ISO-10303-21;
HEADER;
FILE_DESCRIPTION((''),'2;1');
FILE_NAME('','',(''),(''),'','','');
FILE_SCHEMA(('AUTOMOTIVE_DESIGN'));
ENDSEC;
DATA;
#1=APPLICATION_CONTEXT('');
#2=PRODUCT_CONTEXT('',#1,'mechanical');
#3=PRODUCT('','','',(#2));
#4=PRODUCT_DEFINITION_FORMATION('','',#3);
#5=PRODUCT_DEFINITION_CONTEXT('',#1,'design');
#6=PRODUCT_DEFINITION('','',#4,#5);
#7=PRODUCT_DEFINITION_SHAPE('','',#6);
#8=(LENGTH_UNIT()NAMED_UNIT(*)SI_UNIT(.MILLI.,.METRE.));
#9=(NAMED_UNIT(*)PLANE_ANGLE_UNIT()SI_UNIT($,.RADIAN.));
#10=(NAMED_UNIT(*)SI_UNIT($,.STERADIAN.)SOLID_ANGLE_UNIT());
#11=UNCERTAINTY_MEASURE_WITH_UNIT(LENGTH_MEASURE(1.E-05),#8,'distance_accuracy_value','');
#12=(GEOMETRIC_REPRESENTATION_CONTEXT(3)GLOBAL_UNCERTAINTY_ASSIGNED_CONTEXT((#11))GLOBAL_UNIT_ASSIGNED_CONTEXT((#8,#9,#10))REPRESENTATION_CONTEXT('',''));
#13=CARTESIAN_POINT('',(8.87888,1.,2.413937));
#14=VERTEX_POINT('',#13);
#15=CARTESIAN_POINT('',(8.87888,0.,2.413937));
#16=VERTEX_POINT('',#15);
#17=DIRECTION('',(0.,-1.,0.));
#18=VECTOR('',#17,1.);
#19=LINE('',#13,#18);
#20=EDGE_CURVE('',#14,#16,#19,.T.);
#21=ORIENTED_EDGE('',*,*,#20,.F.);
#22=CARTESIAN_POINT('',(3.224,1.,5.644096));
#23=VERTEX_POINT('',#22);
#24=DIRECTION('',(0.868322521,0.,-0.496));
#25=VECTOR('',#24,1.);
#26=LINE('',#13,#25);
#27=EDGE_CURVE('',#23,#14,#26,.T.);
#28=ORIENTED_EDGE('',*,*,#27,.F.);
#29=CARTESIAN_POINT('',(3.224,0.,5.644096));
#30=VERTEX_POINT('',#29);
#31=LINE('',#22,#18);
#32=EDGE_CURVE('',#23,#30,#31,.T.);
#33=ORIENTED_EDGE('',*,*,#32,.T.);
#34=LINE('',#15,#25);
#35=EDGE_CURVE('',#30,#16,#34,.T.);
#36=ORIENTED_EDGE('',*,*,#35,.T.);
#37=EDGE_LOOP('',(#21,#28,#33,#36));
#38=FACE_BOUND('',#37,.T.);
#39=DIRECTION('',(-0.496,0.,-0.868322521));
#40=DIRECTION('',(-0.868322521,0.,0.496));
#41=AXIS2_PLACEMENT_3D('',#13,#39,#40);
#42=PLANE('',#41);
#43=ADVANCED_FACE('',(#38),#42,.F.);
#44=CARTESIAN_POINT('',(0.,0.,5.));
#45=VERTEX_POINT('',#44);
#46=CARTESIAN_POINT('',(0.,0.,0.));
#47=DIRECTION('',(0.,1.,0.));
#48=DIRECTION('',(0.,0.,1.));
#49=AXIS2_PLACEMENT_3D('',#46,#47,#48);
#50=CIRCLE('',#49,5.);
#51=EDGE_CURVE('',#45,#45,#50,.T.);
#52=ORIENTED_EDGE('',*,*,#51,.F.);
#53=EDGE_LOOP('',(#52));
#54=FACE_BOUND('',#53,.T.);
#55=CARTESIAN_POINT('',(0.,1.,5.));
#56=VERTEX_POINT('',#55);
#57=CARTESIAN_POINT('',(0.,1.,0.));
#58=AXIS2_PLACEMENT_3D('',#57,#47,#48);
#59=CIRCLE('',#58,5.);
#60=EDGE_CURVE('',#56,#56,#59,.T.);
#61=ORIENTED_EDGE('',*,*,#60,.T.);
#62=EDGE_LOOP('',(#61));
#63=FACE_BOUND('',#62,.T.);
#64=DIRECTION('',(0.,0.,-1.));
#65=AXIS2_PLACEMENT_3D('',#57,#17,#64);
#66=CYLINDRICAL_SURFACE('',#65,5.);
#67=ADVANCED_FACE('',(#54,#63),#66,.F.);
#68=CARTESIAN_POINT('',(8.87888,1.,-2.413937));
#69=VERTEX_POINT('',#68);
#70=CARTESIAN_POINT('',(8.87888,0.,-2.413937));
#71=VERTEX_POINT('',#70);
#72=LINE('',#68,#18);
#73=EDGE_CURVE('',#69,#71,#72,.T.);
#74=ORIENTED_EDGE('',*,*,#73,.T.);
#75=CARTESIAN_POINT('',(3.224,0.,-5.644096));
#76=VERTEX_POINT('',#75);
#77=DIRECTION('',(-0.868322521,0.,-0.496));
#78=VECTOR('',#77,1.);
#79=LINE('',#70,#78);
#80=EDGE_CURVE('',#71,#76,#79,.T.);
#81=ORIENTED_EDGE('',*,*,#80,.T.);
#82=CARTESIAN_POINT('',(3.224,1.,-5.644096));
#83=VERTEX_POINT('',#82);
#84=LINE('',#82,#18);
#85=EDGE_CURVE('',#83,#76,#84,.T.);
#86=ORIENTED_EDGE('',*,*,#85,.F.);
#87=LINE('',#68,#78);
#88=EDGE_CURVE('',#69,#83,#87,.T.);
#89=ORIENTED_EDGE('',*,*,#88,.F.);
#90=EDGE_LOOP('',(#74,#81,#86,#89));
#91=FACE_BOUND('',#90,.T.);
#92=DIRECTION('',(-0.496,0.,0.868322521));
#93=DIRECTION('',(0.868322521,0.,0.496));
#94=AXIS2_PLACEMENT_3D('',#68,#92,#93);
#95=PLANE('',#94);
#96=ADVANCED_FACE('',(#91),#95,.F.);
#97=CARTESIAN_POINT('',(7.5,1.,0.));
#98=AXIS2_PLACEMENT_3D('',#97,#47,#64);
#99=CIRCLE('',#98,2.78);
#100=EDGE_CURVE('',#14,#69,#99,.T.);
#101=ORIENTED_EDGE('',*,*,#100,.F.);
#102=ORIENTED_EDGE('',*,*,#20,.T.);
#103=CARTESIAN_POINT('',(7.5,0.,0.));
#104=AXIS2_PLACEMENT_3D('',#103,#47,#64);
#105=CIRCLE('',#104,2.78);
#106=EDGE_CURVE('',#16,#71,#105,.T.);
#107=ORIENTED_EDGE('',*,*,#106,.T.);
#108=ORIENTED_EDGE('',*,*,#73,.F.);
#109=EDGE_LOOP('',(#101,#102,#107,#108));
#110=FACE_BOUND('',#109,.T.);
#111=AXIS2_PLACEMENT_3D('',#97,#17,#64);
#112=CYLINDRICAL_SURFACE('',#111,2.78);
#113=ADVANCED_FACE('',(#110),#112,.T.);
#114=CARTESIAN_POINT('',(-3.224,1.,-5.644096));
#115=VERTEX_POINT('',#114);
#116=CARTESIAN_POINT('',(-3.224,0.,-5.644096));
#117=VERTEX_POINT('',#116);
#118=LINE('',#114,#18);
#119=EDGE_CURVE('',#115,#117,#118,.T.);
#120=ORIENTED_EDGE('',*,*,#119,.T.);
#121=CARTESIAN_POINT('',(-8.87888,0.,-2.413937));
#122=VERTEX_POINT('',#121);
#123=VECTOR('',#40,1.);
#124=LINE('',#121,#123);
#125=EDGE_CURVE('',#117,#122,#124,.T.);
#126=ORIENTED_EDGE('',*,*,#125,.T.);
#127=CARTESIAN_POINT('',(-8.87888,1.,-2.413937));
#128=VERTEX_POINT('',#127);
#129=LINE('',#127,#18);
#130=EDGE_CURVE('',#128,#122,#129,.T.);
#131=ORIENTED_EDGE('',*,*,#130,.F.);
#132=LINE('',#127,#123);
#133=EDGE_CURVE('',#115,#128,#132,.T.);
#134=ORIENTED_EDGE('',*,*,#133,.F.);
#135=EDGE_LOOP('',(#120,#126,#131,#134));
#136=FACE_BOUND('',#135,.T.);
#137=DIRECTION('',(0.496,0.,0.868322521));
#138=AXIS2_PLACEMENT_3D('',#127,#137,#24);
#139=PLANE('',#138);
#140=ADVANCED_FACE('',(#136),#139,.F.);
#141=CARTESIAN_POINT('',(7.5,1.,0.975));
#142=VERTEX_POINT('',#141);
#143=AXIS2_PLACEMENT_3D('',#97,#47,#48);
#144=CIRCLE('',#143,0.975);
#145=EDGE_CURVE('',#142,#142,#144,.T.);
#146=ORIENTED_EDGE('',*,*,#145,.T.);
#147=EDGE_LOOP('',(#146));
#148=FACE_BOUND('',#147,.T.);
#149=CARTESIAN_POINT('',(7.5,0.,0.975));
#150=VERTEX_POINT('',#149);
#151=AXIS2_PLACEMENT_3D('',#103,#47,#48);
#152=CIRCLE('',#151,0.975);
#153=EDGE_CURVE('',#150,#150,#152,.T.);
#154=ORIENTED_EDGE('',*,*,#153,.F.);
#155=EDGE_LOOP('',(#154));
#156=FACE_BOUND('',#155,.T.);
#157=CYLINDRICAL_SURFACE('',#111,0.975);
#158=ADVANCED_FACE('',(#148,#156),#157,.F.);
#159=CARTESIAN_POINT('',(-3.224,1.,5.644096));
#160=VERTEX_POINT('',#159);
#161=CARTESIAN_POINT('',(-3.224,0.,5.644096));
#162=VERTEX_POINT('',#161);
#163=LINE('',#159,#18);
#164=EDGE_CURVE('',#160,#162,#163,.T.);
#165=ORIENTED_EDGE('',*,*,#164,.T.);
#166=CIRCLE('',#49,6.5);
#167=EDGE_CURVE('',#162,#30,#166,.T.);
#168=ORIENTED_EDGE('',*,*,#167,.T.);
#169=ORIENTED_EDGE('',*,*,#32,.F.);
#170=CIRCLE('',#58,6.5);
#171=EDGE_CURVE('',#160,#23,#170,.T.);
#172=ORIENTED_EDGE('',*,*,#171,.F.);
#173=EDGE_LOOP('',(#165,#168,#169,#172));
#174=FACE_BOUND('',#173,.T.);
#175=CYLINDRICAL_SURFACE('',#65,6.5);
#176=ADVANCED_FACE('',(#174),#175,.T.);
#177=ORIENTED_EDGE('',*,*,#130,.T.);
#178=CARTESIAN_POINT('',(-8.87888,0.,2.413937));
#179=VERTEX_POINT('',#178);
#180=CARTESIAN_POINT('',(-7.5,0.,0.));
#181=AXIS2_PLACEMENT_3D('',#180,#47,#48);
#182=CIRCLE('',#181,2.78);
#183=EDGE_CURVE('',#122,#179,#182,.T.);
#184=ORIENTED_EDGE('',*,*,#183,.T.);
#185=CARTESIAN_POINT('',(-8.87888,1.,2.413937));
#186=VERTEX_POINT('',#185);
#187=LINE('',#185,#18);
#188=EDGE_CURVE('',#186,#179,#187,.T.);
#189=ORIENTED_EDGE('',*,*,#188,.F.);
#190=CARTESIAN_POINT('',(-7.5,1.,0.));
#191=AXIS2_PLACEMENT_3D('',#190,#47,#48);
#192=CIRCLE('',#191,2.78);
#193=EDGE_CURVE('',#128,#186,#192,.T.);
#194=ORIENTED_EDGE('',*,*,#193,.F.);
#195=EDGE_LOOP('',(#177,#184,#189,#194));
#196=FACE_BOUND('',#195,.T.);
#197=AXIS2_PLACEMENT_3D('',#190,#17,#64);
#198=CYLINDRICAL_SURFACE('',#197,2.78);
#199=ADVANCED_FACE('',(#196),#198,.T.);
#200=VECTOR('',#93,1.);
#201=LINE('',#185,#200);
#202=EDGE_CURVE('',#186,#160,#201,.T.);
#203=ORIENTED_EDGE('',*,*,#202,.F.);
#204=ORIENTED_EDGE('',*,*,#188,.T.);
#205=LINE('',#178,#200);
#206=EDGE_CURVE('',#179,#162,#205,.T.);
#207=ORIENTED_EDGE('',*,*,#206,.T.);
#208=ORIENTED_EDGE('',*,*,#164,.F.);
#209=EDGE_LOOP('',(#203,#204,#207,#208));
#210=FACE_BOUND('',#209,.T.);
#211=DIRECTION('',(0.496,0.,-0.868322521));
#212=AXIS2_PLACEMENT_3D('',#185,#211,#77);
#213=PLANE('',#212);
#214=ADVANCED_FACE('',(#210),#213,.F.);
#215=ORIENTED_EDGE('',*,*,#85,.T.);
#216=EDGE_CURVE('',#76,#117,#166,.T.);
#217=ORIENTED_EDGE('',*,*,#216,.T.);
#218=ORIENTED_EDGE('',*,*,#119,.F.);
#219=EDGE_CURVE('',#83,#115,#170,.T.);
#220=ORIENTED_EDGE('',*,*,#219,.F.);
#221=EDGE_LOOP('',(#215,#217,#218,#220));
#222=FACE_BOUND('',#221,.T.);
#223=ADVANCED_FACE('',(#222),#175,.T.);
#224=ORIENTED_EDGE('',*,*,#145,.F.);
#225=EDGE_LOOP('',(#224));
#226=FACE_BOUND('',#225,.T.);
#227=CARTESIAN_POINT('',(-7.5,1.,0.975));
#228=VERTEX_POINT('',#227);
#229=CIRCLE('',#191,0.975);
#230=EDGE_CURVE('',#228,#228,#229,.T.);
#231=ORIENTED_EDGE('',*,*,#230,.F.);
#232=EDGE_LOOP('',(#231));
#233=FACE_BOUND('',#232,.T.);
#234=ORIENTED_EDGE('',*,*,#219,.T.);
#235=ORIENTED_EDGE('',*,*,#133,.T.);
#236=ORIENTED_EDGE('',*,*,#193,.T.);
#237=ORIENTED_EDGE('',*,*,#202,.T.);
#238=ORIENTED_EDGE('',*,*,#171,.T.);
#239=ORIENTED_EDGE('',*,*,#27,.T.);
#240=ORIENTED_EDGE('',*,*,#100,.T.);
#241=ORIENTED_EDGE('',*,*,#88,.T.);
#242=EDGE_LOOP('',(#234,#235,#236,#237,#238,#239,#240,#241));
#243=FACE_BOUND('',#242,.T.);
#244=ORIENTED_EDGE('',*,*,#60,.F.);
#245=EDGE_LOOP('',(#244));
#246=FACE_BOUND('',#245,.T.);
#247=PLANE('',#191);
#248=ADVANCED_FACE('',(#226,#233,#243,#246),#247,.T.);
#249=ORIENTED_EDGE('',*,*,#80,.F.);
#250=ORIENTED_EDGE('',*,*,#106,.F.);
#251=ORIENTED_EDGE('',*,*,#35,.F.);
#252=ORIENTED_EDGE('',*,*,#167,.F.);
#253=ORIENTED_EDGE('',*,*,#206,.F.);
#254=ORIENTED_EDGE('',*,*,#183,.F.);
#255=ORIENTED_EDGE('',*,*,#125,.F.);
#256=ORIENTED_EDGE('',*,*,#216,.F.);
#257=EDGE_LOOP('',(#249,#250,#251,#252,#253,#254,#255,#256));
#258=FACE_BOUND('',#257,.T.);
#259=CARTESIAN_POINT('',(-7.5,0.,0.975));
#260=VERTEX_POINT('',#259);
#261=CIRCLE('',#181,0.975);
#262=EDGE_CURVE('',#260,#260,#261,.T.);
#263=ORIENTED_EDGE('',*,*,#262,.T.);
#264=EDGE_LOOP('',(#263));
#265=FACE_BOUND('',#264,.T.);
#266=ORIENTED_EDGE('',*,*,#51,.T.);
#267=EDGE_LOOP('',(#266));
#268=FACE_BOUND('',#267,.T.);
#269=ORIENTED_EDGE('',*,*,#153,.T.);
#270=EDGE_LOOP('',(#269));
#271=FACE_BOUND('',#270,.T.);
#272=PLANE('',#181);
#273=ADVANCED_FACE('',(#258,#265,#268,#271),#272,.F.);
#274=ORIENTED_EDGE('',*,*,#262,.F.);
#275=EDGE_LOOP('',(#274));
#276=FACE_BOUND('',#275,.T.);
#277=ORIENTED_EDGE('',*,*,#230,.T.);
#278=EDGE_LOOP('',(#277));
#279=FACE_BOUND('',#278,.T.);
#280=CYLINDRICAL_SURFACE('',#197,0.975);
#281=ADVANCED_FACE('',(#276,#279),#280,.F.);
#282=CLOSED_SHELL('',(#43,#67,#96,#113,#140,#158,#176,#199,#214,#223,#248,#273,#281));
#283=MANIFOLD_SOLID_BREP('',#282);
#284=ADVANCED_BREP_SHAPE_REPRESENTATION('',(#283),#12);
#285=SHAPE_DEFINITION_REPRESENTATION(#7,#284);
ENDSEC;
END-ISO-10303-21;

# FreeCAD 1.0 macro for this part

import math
import FreeCAD as App
import Part
import Sketcher

V = App.Vector

doc = App.newDocument("Part")
body = doc.addObject("PartDesign::Body", "Body")

sketch1 = body.newObject("Sketcher::SketchObject", "Sketch")
sketch1.AttachmentSupport = (doc.getObject("XZ_Plane"), [""])
sketch1.MapMode = "FlatFace"
sketch1.addGeometry([
    Part.LineSegment(V(-3.2, -5.6, 0), V(-8.9, -2.4, 0)),
    Part.ArcOfCircle(Part.Circle(V(-7.5, 0, 0), V(0, 0, 1), 2.8), math.radians(120), math.radians(240)),
    Part.LineSegment(V(-8.9, 2.4, 0), V(-3.2, 5.6, 0)),
    Part.ArcOfCircle(Part.Circle(V(0, 0, 0), V(0, 0, 1), 6.5), math.radians(60), math.radians(120)),
    Part.LineSegment(V(3.2, 5.6, 0), V(8.9, 2.4, 0)),
    Part.ArcOfCircle(Part.Circle(V(7.5, 0, 0), V(0, 0, 1), 2.8), math.radians(-60), math.radians(60)),
    Part.LineSegment(V(8.9, -2.4, 0), V(3.2, -5.6, 0)),
    Part.ArcOfCircle(Part.Circle(V(0, 0, 0), V(0, 0, 1), 6.5), math.radians(-120), math.radians(-60)),
    Part.Circle(V(7.5, 0, 0), V(0, 0, 1), 1),
    Part.Circle(V(0, 0, 0), V(0, 0, 1), 5),
    Part.Circle(V(-7.5, 0, 0), V(0, 0, 1), 1),
], False)
sketch1.addConstraint([
    Sketcher.Constraint("Tangent", 0, 2, 1, 2),
    Sketcher.Constraint("Tangent", 1, 1, 2, 1),
    Sketcher.Constraint("Tangent", 2, 2, 3, 2),
    Sketcher.Constraint("Tangent", 3, 1, 4, 1),
    Sketcher.Constraint("Tangent", 4, 2, 5, 2),
    Sketcher.Constraint("Tangent", 5, 1, 6, 1),
    Sketcher.Constraint("Tangent", 6, 2, 7, 2),
    Sketcher.Constraint("Tangent", 7, 1, 0, 1),
    Sketcher.Constraint("Coincident", 3, 3, -1, 1),
    Sketcher.Constraint("Coincident", 7, 3, -1, 1),
    Sketcher.Constraint("Coincident", 9, 3, -1, 1),
    Sketcher.Constraint("Coincident", 8, 3, 5, 3),
    Sketcher.Constraint("Coincident", 10, 3, 1, 3),
    Sketcher.Constraint("Equal", 1, 5),
    Sketcher.Constraint("Equal", 3, 7),
    Sketcher.Constraint("Equal", 8, 10),
    Sketcher.Constraint("Symmetric", 1, 3, 5, 3, -1, 1),
    Sketcher.Constraint("PointOnObject", 1, 3, -1),
    Sketcher.Constraint("Diameter", 9, 10.0),
    Sketcher.Constraint("Radius", 3, 6.5),
    Sketcher.Constraint("Diameter", 8, 1.95),
    Sketcher.Constraint("Radius", 1, 2.78),
    Sketcher.Constraint("DistanceX", 1, 3, 5, 3, 15.0),
])
pad1 = body.newObject("PartDesign::Pad", "Pad")
pad1.Profile = sketch1
pad1.Length = 1
pad1.Reversed = True

doc.recompute()
